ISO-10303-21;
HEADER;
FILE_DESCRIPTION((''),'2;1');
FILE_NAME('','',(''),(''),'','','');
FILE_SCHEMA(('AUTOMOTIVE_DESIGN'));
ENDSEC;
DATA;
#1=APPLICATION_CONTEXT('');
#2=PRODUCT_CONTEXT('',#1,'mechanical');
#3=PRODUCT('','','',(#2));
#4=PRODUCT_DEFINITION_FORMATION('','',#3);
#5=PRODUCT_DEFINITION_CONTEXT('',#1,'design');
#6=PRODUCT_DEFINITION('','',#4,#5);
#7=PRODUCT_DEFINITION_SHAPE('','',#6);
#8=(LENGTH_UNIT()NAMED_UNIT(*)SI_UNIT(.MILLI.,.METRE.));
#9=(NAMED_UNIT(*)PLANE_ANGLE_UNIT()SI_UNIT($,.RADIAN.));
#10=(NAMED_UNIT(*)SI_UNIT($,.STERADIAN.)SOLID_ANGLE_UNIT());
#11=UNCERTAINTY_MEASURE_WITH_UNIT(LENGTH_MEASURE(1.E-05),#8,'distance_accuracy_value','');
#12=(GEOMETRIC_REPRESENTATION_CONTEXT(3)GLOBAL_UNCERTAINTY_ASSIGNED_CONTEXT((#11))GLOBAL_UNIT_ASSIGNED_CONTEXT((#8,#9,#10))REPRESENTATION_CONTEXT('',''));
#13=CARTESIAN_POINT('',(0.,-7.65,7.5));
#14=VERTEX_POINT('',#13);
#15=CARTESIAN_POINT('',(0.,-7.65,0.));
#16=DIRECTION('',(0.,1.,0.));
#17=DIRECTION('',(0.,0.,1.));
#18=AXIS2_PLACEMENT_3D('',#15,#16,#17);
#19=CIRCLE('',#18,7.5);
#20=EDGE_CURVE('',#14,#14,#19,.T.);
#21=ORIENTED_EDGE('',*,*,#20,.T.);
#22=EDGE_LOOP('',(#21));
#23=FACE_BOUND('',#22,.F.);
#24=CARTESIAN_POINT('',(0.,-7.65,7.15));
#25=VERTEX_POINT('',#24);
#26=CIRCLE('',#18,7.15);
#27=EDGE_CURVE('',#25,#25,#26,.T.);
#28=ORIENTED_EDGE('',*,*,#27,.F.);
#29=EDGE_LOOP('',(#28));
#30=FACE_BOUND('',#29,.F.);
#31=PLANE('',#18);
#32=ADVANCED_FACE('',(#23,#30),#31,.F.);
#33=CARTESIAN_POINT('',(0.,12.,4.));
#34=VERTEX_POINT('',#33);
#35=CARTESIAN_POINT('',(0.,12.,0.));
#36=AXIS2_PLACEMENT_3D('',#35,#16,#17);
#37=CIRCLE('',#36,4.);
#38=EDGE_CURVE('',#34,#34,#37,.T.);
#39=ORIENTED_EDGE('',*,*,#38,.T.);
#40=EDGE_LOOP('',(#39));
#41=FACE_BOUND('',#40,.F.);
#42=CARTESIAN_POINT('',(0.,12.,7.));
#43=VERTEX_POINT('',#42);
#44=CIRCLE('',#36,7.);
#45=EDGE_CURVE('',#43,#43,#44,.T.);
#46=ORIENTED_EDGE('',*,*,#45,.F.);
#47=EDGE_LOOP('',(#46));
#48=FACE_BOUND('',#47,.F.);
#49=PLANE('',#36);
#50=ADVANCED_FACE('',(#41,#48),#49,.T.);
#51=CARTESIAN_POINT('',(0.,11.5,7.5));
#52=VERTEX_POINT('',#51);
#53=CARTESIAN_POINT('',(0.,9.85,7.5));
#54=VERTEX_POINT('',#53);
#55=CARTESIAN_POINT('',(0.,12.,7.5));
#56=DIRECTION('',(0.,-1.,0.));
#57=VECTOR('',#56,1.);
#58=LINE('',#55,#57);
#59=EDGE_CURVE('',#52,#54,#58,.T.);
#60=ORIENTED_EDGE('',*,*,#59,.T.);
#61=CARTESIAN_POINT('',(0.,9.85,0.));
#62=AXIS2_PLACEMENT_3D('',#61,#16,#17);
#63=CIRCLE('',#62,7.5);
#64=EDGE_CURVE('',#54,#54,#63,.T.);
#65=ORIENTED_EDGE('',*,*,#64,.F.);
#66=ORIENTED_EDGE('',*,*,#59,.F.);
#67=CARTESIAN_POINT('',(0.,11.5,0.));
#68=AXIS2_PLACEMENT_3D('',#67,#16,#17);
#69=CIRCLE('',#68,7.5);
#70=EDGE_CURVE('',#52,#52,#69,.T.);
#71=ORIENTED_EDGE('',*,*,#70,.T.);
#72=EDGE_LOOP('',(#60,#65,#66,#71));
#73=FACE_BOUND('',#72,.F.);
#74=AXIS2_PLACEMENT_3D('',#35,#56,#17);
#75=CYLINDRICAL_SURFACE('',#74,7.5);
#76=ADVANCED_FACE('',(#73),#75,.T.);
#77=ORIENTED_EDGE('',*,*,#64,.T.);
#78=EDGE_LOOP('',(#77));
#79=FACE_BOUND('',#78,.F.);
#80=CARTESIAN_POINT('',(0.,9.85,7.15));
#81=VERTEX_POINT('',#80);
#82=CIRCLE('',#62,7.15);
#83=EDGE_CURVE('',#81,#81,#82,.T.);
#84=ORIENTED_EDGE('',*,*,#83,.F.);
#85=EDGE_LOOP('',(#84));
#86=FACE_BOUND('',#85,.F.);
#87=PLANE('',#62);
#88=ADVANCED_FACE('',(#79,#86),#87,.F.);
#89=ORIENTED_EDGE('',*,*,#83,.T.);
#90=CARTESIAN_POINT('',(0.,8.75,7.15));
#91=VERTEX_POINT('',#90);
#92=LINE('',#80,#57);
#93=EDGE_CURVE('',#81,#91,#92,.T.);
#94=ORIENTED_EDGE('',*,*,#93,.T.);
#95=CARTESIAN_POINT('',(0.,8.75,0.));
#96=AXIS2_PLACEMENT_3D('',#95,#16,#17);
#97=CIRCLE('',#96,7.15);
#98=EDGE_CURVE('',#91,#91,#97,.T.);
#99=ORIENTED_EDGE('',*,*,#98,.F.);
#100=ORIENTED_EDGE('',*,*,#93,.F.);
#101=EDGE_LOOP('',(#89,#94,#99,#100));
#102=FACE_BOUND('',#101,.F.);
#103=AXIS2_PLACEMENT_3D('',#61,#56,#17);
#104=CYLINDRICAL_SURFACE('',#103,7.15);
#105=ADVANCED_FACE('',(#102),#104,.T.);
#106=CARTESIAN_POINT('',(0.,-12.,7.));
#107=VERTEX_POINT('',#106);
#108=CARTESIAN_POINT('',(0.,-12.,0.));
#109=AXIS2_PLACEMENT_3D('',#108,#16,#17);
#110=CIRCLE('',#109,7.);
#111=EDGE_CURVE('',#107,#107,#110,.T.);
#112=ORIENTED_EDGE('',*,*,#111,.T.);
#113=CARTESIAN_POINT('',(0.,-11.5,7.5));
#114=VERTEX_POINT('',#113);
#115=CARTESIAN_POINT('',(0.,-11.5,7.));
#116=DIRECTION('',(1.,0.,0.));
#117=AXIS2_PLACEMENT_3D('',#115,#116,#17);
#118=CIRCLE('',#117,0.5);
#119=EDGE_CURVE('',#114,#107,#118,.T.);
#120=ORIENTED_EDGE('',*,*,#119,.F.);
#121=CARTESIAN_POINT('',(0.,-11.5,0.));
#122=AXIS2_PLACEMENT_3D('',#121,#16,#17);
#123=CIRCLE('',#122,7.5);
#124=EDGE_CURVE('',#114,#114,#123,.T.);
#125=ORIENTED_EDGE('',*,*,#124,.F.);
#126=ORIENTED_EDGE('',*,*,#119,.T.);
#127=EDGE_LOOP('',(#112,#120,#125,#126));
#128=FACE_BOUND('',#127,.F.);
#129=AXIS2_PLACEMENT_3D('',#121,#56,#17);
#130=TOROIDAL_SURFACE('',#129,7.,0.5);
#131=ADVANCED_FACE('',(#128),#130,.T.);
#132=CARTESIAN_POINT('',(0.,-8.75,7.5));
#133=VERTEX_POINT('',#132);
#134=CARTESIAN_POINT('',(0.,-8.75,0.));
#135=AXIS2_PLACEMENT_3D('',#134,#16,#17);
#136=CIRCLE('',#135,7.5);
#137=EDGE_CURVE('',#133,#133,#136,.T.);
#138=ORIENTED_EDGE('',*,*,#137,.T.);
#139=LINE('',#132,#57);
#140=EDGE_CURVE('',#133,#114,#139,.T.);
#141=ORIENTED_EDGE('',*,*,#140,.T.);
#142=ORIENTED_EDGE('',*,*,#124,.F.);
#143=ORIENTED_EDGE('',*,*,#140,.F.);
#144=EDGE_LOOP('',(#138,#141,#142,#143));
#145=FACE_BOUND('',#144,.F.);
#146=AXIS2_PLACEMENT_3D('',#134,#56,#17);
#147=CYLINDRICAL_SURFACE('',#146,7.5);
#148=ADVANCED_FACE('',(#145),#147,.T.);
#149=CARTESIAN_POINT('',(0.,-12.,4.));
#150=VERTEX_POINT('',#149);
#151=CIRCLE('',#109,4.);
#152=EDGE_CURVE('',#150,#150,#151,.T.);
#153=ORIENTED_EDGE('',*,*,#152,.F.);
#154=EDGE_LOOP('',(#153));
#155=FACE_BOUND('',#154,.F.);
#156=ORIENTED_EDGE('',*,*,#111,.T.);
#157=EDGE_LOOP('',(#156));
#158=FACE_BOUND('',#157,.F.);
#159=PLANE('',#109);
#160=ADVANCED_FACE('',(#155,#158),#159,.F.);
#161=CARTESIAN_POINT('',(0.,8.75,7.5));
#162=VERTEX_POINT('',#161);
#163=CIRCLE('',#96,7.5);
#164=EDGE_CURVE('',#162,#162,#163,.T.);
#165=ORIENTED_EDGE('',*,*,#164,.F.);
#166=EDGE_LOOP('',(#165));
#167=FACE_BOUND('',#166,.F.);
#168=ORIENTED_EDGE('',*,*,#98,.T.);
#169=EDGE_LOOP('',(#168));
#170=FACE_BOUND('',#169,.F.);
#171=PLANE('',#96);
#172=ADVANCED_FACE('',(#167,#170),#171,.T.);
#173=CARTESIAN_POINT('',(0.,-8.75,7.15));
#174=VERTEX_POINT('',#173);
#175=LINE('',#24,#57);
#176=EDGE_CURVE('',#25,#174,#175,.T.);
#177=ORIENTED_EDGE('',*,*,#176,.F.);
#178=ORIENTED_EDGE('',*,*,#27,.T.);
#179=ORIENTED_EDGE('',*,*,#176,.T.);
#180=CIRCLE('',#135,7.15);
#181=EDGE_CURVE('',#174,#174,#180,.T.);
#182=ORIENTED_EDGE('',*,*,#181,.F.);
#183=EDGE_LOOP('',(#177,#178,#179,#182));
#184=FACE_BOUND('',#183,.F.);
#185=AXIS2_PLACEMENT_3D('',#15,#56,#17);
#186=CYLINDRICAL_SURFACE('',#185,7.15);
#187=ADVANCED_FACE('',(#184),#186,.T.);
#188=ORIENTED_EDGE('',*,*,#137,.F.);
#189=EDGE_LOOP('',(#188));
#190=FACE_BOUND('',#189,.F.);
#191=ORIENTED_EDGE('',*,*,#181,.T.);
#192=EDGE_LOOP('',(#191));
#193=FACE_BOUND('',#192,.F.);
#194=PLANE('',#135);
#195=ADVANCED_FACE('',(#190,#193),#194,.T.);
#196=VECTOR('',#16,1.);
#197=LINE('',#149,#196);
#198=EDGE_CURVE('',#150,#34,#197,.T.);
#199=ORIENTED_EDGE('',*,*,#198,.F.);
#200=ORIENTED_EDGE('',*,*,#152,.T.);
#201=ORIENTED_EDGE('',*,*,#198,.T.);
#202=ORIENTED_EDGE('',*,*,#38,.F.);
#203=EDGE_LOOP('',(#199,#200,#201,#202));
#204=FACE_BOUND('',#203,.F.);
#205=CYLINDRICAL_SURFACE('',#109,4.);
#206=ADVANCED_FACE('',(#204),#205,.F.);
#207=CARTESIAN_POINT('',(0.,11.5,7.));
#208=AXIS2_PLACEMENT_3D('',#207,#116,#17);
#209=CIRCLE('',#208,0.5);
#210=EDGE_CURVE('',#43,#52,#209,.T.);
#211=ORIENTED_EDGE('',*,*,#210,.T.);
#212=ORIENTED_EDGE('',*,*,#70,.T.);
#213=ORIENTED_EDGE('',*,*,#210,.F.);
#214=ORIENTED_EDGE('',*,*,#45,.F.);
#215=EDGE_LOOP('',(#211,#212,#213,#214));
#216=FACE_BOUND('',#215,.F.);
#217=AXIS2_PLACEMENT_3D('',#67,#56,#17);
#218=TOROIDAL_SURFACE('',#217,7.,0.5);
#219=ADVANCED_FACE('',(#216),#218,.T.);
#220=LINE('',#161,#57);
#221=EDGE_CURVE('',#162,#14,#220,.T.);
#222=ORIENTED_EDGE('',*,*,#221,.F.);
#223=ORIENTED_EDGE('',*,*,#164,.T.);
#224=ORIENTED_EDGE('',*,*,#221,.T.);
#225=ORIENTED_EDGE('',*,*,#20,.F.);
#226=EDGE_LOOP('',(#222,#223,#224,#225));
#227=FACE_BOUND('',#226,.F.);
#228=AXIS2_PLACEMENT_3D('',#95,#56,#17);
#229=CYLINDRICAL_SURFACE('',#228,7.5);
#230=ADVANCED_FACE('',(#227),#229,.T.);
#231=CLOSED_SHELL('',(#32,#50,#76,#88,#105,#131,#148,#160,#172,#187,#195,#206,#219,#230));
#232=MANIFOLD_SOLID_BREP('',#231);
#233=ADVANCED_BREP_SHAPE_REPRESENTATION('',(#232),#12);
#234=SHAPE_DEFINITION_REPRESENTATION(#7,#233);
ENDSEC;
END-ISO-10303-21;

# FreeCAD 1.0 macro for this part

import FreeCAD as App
import Part
import Sketcher
from FreeCAD import Vector


def edges_at(feature, points):
    """Names of the edges that pass closest to the given points."""
    edges = feature.Shape.Edges
    near = lambda p: min(range(len(edges)), key=lambda i: edges[i].distToShape(Part.Vertex(*p))[0])
    return sorted({f"Edge{near(p) + 1}" for p in points})

doc = App.newDocument("Part")
body = doc.addObject("PartDesign::Body", "Body")

# Sketch on YZ plane
sketch1 = body.newObject("Sketcher::SketchObject", "Sketch")
sketch1.AttachmentSupport = (doc.getObject("YZ_Plane"), [""])
sketch1.MapMode = "FlatFace"
sketch1.addGeometry([
    Part.LineSegment(Vector(-8.75, 7.5, 0), Vector(-12, 7.5, 0)),  # 0
    Part.LineSegment(Vector(-12, 7.5, 0), Vector(-12, 4, 0)),  # 1
    Part.LineSegment(Vector(-12, 4, 0), Vector(12, 4, 0)),  # 2
    Part.LineSegment(Vector(12, 4, 0), Vector(12, 7.5, 0)),  # 3
    Part.LineSegment(Vector(12, 7.5, 0), Vector(9.85, 7.5, 0)),  # 4
    Part.LineSegment(Vector(9.85, 7.5, 0), Vector(9.85, 7.15, 0)),  # 5
    Part.LineSegment(Vector(9.85, 7.15, 0), Vector(8.75, 7.15, 0)),  # 6
    Part.LineSegment(Vector(8.75, 7.15, 0), Vector(8.75, 7.5, 0)),  # 7
    Part.LineSegment(Vector(8.75, 7.5, 0), Vector(-7.65, 7.5, 0)),  # 8
    Part.LineSegment(Vector(-7.65, 7.5, 0), Vector(-7.65, 7.15, 0)),  # 9
    Part.LineSegment(Vector(-7.65, 7.15, 0), Vector(-8.75, 7.15, 0)),  # 10
    Part.LineSegment(Vector(-8.75, 7.15, 0), Vector(-8.75, 7.5, 0)),  # 11
], False)
sketch1.addConstraint([
    Sketcher.Constraint("Coincident", 0, 2, 1, 1),
    Sketcher.Constraint("Coincident", 1, 2, 2, 1),
    Sketcher.Constraint("Coincident", 2, 2, 3, 1),
    Sketcher.Constraint("Coincident", 3, 2, 4, 1),
    Sketcher.Constraint("Coincident", 4, 2, 5, 1),
    Sketcher.Constraint("Coincident", 5, 2, 6, 1),
    Sketcher.Constraint("Coincident", 6, 2, 7, 1),
    Sketcher.Constraint("Coincident", 7, 2, 8, 1),
    Sketcher.Constraint("Coincident", 8, 2, 9, 1),
    Sketcher.Constraint("Coincident", 9, 2, 10, 1),
    Sketcher.Constraint("Coincident", 10, 2, 11, 1),
    Sketcher.Constraint("Coincident", 11, 2, 0, 1),
    Sketcher.Constraint("Horizontal", 0),
    Sketcher.Constraint("Vertical", 1),
    Sketcher.Constraint("Horizontal", 2),
    Sketcher.Constraint("Vertical", 3),
    Sketcher.Constraint("Horizontal", 4),
    Sketcher.Constraint("Vertical", 5),
    Sketcher.Constraint("Horizontal", 6),
    Sketcher.Constraint("Vertical", 7),
    Sketcher.Constraint("Horizontal", 8),
    Sketcher.Constraint("Vertical", 9),
    Sketcher.Constraint("Horizontal", 10),
    Sketcher.Constraint("Vertical", 11),
    Sketcher.Constraint("Symmetric", 0, 2, 3, 2, -2),
    Sketcher.Constraint("Symmetric", 6, 2, 10, 2, -2),
    Sketcher.Constraint("Horizontal", 4, 2, 7, 2),
    Sketcher.Constraint("Equal", 6, 10),
    Sketcher.Constraint("DistanceX", 2, 1, 2, 2, 24.0),
    Sketcher.Constraint("DistanceX", 6, 2, 6, 1, 1.1),
    Sketcher.Constraint("DistanceX", 8, 2, 8, 1, 16.4),
    Sketcher.Constraint("DistanceY", 1, 2, 1, 1, 3.5),
    Sketcher.Constraint("DistanceY", -1, 1, 1, 2, 4.0),
    Sketcher.Constraint("DistanceY", 5, 2, 5, 1, 0.35),
])
revolution = body.newObject("PartDesign::Revolution", "Revolution")
revolution.Profile = sketch1
revolution.ReferenceAxis = (sketch1, ["H_Axis"])
revolution.Angle = 360
doc.recompute()

fillet = body.newObject("PartDesign::Fillet", "Fillet")
fillet.Base = (revolution, edges_at(revolution, [(0, 12, -7.5), (0, -12, -7.5)]))
fillet.Radius = 0.5

doc.recompute()
